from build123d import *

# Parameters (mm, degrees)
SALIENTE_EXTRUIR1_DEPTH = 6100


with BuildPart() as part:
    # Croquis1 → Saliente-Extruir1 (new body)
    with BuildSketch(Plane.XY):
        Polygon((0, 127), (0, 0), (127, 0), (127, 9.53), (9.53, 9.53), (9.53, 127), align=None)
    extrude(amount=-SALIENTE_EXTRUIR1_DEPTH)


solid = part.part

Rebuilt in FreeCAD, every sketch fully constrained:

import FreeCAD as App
import Part
import Sketcher

V = App.Vector

doc = App.newDocument("Part")
body = doc.addObject("PartDesign::Body", "Body")

# Sketch on XY plane
sketch1 = body.newObject("Sketcher::SketchObject", "Sketch")
sketch1.AttachmentSupport = (doc.getObject("XY_Plane"), [""])
sketch1.MapMode = "FlatFace"
sketch1.addGeometry(Part.LineSegment(V(0, 127, 0), V(0, 0, 0)), False)
sketch1.addGeometry(Part.LineSegment(V(0, 0, 0), V(127, 0, 0)), False)
sketch1.addGeometry(Part.LineSegment(V(127, 0, 0), V(127, 9.53, 0)), False)
sketch1.addGeometry(Part.LineSegment(V(127, 9.53, 0), V(9.53, 9.53, 0)), False)
sketch1.addGeometry(Part.LineSegment(V(9.53, 9.53, 0), V(9.53, 127, 0)), False)
sketch1.addGeometry(Part.LineSegment(V(9.53, 127, 0), V(0, 127, 0)), False)
sketch1.addConstraint(Sketcher.Constraint("Coincident", 0, 2, 1, 1))
sketch1.addConstraint(Sketcher.Constraint("Coincident", 1, 2, 2, 1))
sketch1.addConstraint(Sketcher.Constraint("Coincident", 2, 2, 3, 1))
sketch1.addConstraint(Sketcher.Constraint("Coincident", 3, 2, 4, 1))
sketch1.addConstraint(Sketcher.Constraint("Coincident", 4, 2, 5, 1))
sketch1.addConstraint(Sketcher.Constraint("Coincident", 5, 2, 0, 1))
sketch1.addConstraint(Sketcher.Constraint("Vertical", 0))
sketch1.addConstraint(Sketcher.Constraint("Horizontal", 1))
sketch1.addConstraint(Sketcher.Constraint("Vertical", 2))
sketch1.addConstraint(Sketcher.Constraint("Horizontal", 3))
sketch1.addConstraint(Sketcher.Constraint("Vertical", 4))
sketch1.addConstraint(Sketcher.Constraint("Horizontal", 5))
sketch1.addConstraint(Sketcher.Constraint("Coincident", 0, 2, -1, 1))
sketch1.addConstraint(Sketcher.Constraint("Equal", 1, 0))
sketch1.addConstraint(Sketcher.Constraint("Equal", 5, 2))
sketch1.addConstraint(Sketcher.Constraint("DistanceX", 1, 1, 1, 2, 127.0))
sketch1.addConstraint(Sketcher.Constraint("DistanceX", 3, 2, 3, 1, 117.47))
pad1 = body.newObject("PartDesign::Pad", "Pad")
pad1.Profile = sketch1
pad1.Length = 6100
pad1.Reversed = True

doc.recompute()
